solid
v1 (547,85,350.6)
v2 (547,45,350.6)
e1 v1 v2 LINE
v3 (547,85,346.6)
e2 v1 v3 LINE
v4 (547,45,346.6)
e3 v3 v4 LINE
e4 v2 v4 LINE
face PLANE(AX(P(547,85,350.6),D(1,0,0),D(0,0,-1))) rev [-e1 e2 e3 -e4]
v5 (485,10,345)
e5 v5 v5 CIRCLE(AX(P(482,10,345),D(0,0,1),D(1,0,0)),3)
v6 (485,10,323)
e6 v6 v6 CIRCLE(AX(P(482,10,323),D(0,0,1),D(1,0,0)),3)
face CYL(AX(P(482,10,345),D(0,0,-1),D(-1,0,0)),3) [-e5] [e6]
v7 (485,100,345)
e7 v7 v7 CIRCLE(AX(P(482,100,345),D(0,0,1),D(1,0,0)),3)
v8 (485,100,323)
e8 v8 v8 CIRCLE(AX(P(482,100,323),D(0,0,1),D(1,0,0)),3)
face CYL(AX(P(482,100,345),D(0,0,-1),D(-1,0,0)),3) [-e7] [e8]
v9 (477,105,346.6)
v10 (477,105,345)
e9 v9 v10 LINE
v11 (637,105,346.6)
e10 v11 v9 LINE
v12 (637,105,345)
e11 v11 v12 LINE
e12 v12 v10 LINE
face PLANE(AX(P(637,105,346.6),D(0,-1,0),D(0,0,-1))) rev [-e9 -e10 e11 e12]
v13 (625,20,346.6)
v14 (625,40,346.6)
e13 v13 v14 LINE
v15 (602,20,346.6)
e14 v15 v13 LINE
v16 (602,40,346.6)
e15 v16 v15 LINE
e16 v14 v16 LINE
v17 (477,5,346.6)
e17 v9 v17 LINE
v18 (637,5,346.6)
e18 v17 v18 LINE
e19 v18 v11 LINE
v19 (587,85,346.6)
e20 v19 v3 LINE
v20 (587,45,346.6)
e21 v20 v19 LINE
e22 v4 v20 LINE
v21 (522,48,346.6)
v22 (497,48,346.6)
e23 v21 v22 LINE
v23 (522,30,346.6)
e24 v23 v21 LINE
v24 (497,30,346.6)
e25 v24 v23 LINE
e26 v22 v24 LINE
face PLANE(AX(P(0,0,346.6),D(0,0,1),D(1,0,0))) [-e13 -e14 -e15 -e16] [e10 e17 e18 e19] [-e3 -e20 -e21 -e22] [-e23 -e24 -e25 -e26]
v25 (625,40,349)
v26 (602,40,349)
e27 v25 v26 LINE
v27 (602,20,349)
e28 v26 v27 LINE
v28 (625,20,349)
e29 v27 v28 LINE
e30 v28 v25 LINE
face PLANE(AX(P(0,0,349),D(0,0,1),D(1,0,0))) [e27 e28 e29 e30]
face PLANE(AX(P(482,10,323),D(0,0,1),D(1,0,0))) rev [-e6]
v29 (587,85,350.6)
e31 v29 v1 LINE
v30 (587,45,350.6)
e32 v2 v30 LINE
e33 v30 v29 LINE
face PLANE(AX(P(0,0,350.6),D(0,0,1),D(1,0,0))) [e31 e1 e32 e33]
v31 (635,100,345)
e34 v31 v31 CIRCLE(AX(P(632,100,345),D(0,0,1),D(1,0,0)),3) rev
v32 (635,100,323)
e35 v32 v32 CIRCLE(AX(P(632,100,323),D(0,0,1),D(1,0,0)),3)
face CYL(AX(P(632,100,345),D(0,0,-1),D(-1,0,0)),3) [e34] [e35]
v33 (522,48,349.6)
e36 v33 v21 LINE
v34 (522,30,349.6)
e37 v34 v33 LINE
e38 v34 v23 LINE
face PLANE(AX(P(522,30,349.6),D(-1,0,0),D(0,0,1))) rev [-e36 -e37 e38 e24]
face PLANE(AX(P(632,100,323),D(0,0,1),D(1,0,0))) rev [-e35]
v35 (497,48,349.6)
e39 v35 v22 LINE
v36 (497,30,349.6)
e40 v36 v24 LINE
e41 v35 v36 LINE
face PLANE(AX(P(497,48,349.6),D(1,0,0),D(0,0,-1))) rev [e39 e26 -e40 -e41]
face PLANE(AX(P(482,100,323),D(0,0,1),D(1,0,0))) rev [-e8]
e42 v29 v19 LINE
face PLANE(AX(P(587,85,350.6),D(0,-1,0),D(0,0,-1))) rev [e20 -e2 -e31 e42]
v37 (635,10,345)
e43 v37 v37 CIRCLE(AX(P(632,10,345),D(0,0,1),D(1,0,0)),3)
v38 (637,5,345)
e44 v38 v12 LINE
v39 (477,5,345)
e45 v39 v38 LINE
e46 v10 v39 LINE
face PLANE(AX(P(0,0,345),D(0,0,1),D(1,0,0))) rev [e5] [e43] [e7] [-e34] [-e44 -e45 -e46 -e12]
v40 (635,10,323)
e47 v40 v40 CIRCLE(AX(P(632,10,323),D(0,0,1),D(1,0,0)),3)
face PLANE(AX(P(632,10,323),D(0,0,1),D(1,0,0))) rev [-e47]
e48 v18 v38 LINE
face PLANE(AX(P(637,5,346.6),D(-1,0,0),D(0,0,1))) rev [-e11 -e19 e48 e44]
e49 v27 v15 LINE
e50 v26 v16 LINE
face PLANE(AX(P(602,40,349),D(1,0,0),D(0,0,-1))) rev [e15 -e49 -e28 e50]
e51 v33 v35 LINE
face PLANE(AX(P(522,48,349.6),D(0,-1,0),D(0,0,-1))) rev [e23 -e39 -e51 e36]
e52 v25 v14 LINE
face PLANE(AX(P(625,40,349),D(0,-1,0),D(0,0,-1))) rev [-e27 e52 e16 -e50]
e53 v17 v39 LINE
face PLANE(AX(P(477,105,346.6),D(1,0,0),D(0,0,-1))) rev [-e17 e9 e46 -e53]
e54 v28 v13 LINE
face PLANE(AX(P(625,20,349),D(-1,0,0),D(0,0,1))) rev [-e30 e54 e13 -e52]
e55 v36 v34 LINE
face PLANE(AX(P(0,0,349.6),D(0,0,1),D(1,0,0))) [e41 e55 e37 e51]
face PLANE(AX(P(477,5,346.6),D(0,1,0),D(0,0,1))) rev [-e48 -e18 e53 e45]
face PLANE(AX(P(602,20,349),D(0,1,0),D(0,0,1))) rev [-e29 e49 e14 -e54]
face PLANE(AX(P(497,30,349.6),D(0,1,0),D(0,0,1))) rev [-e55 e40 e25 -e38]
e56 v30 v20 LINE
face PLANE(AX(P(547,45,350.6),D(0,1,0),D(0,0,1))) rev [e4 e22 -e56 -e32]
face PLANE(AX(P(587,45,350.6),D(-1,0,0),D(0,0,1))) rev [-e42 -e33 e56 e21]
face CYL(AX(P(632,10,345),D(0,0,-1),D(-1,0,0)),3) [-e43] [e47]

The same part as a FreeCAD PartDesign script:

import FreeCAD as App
import Part
import Sketcher
from FreeCAD import Vector

doc = App.newDocument("Part")
params = doc.addObject("Spreadsheet::Sheet", "Params")
for row, (alias, value) in enumerate([
    ("sketch1_width", "160 mm"),
    ("sketch1_height", "100 mm"),
    ("pad1_length", "1.6 mm"),
    ("sketch2_width", "25 mm"),
    ("sketch2_height", "18 mm"),
    ("pad2_length", "3 mm"),
    ("sketch3_width", "40 mm"),
    ("pad3_length", "4 mm"),
    ("sketch4_width", "23 mm"),
    ("sketch4_height", "20 mm"),
    ("pad4_length", "2.4 mm"),
    ("sketch5_diameter", "6 mm"),
    ("pad5_length", "22 mm"),
    ("sketch6_diameter", "6 mm"),
    ("pad6_length", "22 mm"),
    ("sketch7_diameter", "6 mm"),
    ("pad7_length", "22 mm"),
    ("sketch8_diameter", "6 mm"),
    ("pad8_length", "22 mm"),
], start=1):
    params.set(f"A{row}", alias)
    params.set(f"B{row}", "=" + value)
    params.setAlias(f"B{row}", alias)

body = doc.addObject("PartDesign::Body", "Body")

# Sketch on XY plane
sketch1 = doc.addObject("Sketcher::SketchObject", "Sketch")
body.addObject(sketch1)
sketch1.AttachmentSupport = (doc.XY_Plane, [""])
sketch1.MapMode = "FlatFace"
sketch1.AttachmentOffset = App.Placement(Vector(0, 0, 345), App.Rotation())
sketch1.addGeometry([
    Part.LineSegment(Vector(477, 105, 0), Vector(477, 5, 0)),
    Part.LineSegment(Vector(477, 5, 0), Vector(637, 5, 0)),
    Part.LineSegment(Vector(637, 5, 0), Vector(637, 105, 0)),
    Part.LineSegment(Vector(637, 105, 0), Vector(477, 105, 0)),
], False)
sketch1.addConstraint([
    Sketcher.Constraint("Coincident", 0, 2, 1, 1),
    Sketcher.Constraint("Coincident", 1, 2, 2, 1),
    Sketcher.Constraint("Coincident", 2, 2, 3, 1),
    Sketcher.Constraint("Coincident", 3, 2, 0, 1),
    Sketcher.Constraint("Vertical", 0),
    Sketcher.Constraint("Horizontal", 1),
    Sketcher.Constraint("Vertical", 2),
    Sketcher.Constraint("Horizontal", 3),
    Sketcher.Constraint("DistanceX", 1, 1, 1, 2, 160.0),
    Sketcher.Constraint("DistanceY", 0, 2, 0, 1, 100.0),
    Sketcher.Constraint("DistanceX", -1, 1, 0, 2, 477.0),
    Sketcher.Constraint("DistanceY", -1, 1, 0, 2, 5.0),
])
sketch1.setExpression("Constraints[8]", "Params.sketch1_width")
sketch1.setExpression("Constraints[9]", "Params.sketch1_height")
pad1 = doc.addObject("PartDesign::Pad", "Pad")
body.addObject(pad1)
pad1.Profile = sketch1
pad1.setExpression("Length", "Params.pad1_length")
body2 = doc.addObject("PartDesign::Body", "Body001")

# Sketch on XY plane
sketch2 = doc.addObject("Sketcher::SketchObject", "Sketch001")
body2.addObject(sketch2)
sketch2.AttachmentSupport = (doc.getObject("XY_Plane001"), [""])
sketch2.MapMode = "FlatFace"
sketch2.AttachmentOffset = App.Placement(Vector(0, 0, 346.6), App.Rotation())
sketch2.addGeometry([
    Part.LineSegment(Vector(497, 48, 0), Vector(497, 30, 0)),
    Part.LineSegment(Vector(497, 30, 0), Vector(522, 30, 0)),
    Part.LineSegment(Vector(522, 30, 0), Vector(522, 48, 0)),
    Part.LineSegment(Vector(522, 48, 0), Vector(497, 48, 0)),
], False)
sketch2.addConstraint([
    Sketcher.Constraint("Coincident", 0, 2, 1, 1),
    Sketcher.Constraint("Coincident", 1, 2, 2, 1),
    Sketcher.Constraint("Coincident", 2, 2, 3, 1),
    Sketcher.Constraint("Coincident", 3, 2, 0, 1),
    Sketcher.Constraint("Vertical", 0),
    Sketcher.Constraint("Horizontal", 1),
    Sketcher.Constraint("Vertical", 2),
    Sketcher.Constraint("Horizontal", 3),
    Sketcher.Constraint("DistanceX", 1, 1, 1, 2, 25.0),
    Sketcher.Constraint("DistanceY", 0, 2, 0, 1, 18.0),
    Sketcher.Constraint("DistanceX", -1, 1, 0, 2, 497.0),
    Sketcher.Constraint("DistanceY", -1, 1, 0, 2, 30.0),
])
sketch2.setExpression("Constraints[8]", "Params.sketch2_width")
sketch2.setExpression("Constraints[9]", "Params.sketch2_height")
pad2 = doc.addObject("PartDesign::Pad", "Pad001")
body2.addObject(pad2)
pad2.Profile = sketch2
pad2.setExpression("Length", "Params.pad2_length")
body3 = doc.addObject("PartDesign::Body", "Body002")

# Sketch on XY plane
sketch3 = doc.addObject("Sketcher::SketchObject", "Sketch002")
body3.addObject(sketch3)
sketch3.AttachmentSupport = (doc.getObject("XY_Plane002"), [""])
sketch3.MapMode = "FlatFace"
sketch3.AttachmentOffset = App.Placement(Vector(0, 0, 346.6), App.Rotation())
sketch3.addGeometry([
    Part.LineSegment(Vector(547, 85, 0), Vector(547, 45, 0)),
    Part.LineSegment(Vector(547, 45, 0), Vector(587, 45, 0)),
    Part.LineSegment(Vector(587, 45, 0), Vector(587, 85, 0)),
    Part.LineSegment(Vector(587, 85, 0), Vector(547, 85, 0)),
], False)
sketch3.addConstraint([
    Sketcher.Constraint("Coincident", 0, 2, 1, 1),
    Sketcher.Constraint("Coincident", 1, 2, 2, 1),
    Sketcher.Constraint("Coincident", 2, 2, 3, 1),
    Sketcher.Constraint("Coincident", 3, 2, 0, 1),
    Sketcher.Constraint("Vertical", 0),
    Sketcher.Constraint("Horizontal", 1),
    Sketcher.Constraint("Vertical", 2),
    Sketcher.Constraint("Horizontal", 3),
    Sketcher.Constraint("Equal", 3, 0),
    Sketcher.Constraint("DistanceX", 1, 1, 1, 2, 40.0),
    Sketcher.Constraint("DistanceX", -1, 1, 0, 2, 547.0),
    Sketcher.Constraint("DistanceY", -1, 1, 0, 2, 45.0),
])
sketch3.setExpression("Constraints[9]", "Params.sketch3_width")
pad3 = doc.addObject("PartDesign::Pad", "Pad002")
body3.addObject(pad3)
pad3.Profile = sketch3
pad3.setExpression("Length", "Params.pad3_length")
body4 = doc.addObject("PartDesign::Body", "Body003")

# Sketch on XY plane
sketch4 = doc.addObject("Sketcher::SketchObject", "Sketch003")
body4.addObject(sketch4)
sketch4.AttachmentSupport = (doc.getObject("XY_Plane003"), [""])
sketch4.MapMode = "FlatFace"
sketch4.AttachmentOffset = App.Placement(Vector(0, 0, 346.6), App.Rotation())
sketch4.addGeometry([
    Part.LineSegment(Vector(602, 40, 0), Vector(602, 20, 0)),
    Part.LineSegment(Vector(602, 20, 0), Vector(625, 20, 0)),
    Part.LineSegment(Vector(625, 20, 0), Vector(625, 40, 0)),
    Part.LineSegment(Vector(625, 40, 0), Vector(602, 40, 0)),
], False)
sketch4.addConstraint([
    Sketcher.Constraint("Coincident", 0, 2, 1, 1),
    Sketcher.Constraint("Coincident", 1, 2, 2, 1),
    Sketcher.Constraint("Coincident", 2, 2, 3, 1),
    Sketcher.Constraint("Coincident", 3, 2, 0, 1),
    Sketcher.Constraint("Vertical", 0),
    Sketcher.Constraint("Horizontal", 1),
    Sketcher.Constraint("Vertical", 2),
    Sketcher.Constraint("Horizontal", 3),
    Sketcher.Constraint("DistanceX", 1, 1, 1, 2, 23.0),
    Sketcher.Constraint("DistanceY", 0, 2, 0, 1, 20.0),
    Sketcher.Constraint("DistanceX", -1, 1, 0, 2, 602.0),
    Sketcher.Constraint("DistanceY", -1, 1, 0, 2, 20.0),
])
sketch4.setExpression("Constraints[8]", "Params.sketch4_width")
sketch4.setExpression("Constraints[9]", "Params.sketch4_height")
pad4 = doc.addObject("PartDesign::Pad", "Pad003")
body4.addObject(pad4)
pad4.Profile = sketch4
pad4.setExpression("Length", "Params.pad4_length")
body5 = doc.addObject("PartDesign::Body", "Body004")

# Sketch on XY plane
sketch5 = doc.addObject("Sketcher::SketchObject", "Sketch004")
body5.addObject(sketch5)
sketch5.AttachmentSupport = (doc.getObject("XY_Plane004"), [""])
sketch5.MapMode = "FlatFace"
sketch5.AttachmentOffset = App.Placement(Vector(0, 0, 323), App.Rotation())
sketch5.addGeometry(Part.Circle(Vector(482, 10, 0), Vector(0, 0, 1), 3), False)
sketch5.addConstraint([
    Sketcher.Constraint("Diameter", 0, 6.0),
    Sketcher.Constraint("DistanceX", -1, 1, 0, 3, 482.0),
    Sketcher.Constraint("DistanceY", -1, 1, 0, 3, 10.0),
])
sketch5.setExpression("Constraints[0]", "Params.sketch5_diameter")
pad5 = doc.addObject("PartDesign::Pad", "Pad004")
body5.addObject(pad5)
pad5.Profile = sketch5
pad5.setExpression("Length", "Params.pad5_length")
body6 = doc.addObject("PartDesign::Body", "Body005")

# Sketch on XY plane
sketch6 = doc.addObject("Sketcher::SketchObject", "Sketch005")
body6.addObject(sketch6)
sketch6.AttachmentSupport = (doc.getObject("XY_Plane005"), [""])
sketch6.MapMode = "FlatFace"
sketch6.AttachmentOffset = App.Placement(Vector(0, 0, 323), App.Rotation())
sketch6.addGeometry(Part.Circle(Vector(482, 100, 0), Vector(0, 0, 1), 3), False)
sketch6.addConstraint([
    Sketcher.Constraint("Diameter", 0, 6.0),
    Sketcher.Constraint("DistanceX", -1, 1, 0, 3, 482.0),
    Sketcher.Constraint("DistanceY", -1, 1, 0, 3, 100.0),
])
sketch6.setExpression("Constraints[0]", "Params.sketch6_diameter")
pad6 = doc.addObject("PartDesign::Pad", "Pad005")
body6.addObject(pad6)
pad6.Profile = sketch6
pad6.setExpression("Length", "Params.pad6_length")
body7 = doc.addObject("PartDesign::Body", "Body006")

# Sketch on XY plane
sketch7 = doc.addObject("Sketcher::SketchObject", "Sketch006")
body7.addObject(sketch7)
sketch7.AttachmentSupport = (doc.getObject("XY_Plane006"), [""])
sketch7.MapMode = "FlatFace"
sketch7.AttachmentOffset = App.Placement(Vector(0, 0, 323), App.Rotation())
sketch7.addGeometry(Part.Circle(Vector(632, 10, 0), Vector(0, 0, 1), 3), False)
sketch7.addConstraint([
    Sketcher.Constraint("Diameter", 0, 6.0),
    Sketcher.Constraint("DistanceX", -1, 1, 0, 3, 632.0),
    Sketcher.Constraint("DistanceY", -1, 1, 0, 3, 10.0),
])
sketch7.setExpression("Constraints[0]", "Params.sketch7_diameter")
pad7 = doc.addObject("PartDesign::Pad", "Pad006")
body7.addObject(pad7)
pad7.Profile = sketch7
pad7.setExpression("Length", "Params.pad7_length")
body8 = doc.addObject("PartDesign::Body", "Body007")

# Sketch on XY plane
sketch8 = doc.addObject("Sketcher::SketchObject", "Sketch007")
body8.addObject(sketch8)
sketch8.AttachmentSupport = (doc.getObject("XY_Plane007"), [""])
sketch8.MapMode = "FlatFace"
sketch8.AttachmentOffset = App.Placement(Vector(0, 0, 323), App.Rotation())
sketch8.addGeometry(Part.Circle(Vector(632, 100, 0), Vector(0, 0, 1), 3), False)
sketch8.addConstraint([
    Sketcher.Constraint("Diameter", 0, 6.0),
    Sketcher.Constraint("DistanceX", -1, 1, 0, 3, 632.0),
    Sketcher.Constraint("DistanceY", -1, 1, 0, 3, 100.0),
])
sketch8.setExpression("Constraints[0]", "Params.sketch8_diameter")
pad8 = doc.addObject("PartDesign::Pad", "Pad007")
body8.addObject(pad8)
pad8.Profile = sketch8
pad8.setExpression("Length", "Params.pad8_length")
body5.AllowCompound = True
doc.recompute()

boolean = doc.addObject("PartDesign::Boolean", "Boolean")
body5.addObject(boolean)
boolean.Type = "Fuse"
boolean.addObjects([body3])
doc.recompute()

boolean2 = doc.addObject("PartDesign::Boolean", "Boolean001")
body5.addObject(boolean2)
boolean2.Type = "Fuse"
boolean2.addObjects([body6])
doc.recompute()

boolean3 = doc.addObject("PartDesign::Boolean", "Boolean002")
body5.addObject(boolean3)
boolean3.Type = "Fuse"
boolean3.addObjects([body])
doc.recompute()

boolean4 = doc.addObject("PartDesign::Boolean", "Boolean003")
body5.addObject(boolean4)
boolean4.Type = "Fuse"
boolean4.addObjects([body7])
doc.recompute()

boolean5 = doc.addObject("PartDesign::Boolean", "Boolean004")
body5.addObject(boolean5)
boolean5.Type = "Fuse"
boolean5.addObjects([body2])
doc.recompute()

boolean6 = doc.addObject("PartDesign::Boolean", "Boolean005")
body5.addObject(boolean6)
boolean6.Type = "Fuse"
boolean6.addObjects([body8])
doc.recompute()

boolean7 = doc.addObject("PartDesign::Boolean", "Boolean006")
body5.addObject(boolean7)
boolean7.Type = "Fuse"
boolean7.addObjects([body4])

doc.recompute()
